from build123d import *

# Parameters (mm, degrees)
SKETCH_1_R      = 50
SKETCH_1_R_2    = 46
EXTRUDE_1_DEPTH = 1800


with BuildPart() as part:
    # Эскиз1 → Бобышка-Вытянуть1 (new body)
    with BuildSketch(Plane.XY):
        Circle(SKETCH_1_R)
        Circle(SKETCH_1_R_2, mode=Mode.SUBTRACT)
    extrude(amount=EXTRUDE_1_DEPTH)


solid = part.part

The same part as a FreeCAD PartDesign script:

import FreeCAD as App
import Part
import Sketcher

V = App.Vector
Q = App.Units.Quantity

doc = App.newDocument("Part")
params = doc.addObject("Spreadsheet::Sheet", "Params")
for row, (alias, value) in enumerate([
    ("sketch1_diameter", "100 mm"),
    ("sketch1_diameter2", "92 mm"),
    ("pad1_length", "1800 mm"),
], start=1):
    params.set(f"A{row}", alias)
    params.set(f"B{row}", "=" + value)
    params.setAlias(f"B{row}", alias)

body = doc.addObject("PartDesign::Body", "Body")

sketch1 = body.newObject("Sketcher::SketchObject", "Sketch")
sketch1.AttachmentSupport = (doc.getObject("XY_Plane"), [""])
sketch1.MapMode = "FlatFace"
sketch1.addGeometry([
    Part.Circle(V(0, 0, 0), V(0, 0, 1), 50),
    Part.Circle(V(0, 0, 0), V(0, 0, 1), 46),
], False)
sketch1.addConstraint([
    Sketcher.Constraint("Coincident", 0, 3, -1, 1),
    Sketcher.Constraint("Coincident", 1, 3, -1, 1),
    Sketcher.Constraint("Diameter", 0, Q("100 mm")),
    Sketcher.Constraint("Diameter", 1, Q("92 mm")),
])
sketch1.setExpression("Constraints[2]", "Params.sketch1_diameter")
sketch1.setExpression("Constraints[3]", "Params.sketch1_diameter2")
pad1 = body.newObject("PartDesign::Pad", "Pad")
pad1.Profile = sketch1
pad1.setExpression("Length", "Params.pad1_length")

doc.recompute()
